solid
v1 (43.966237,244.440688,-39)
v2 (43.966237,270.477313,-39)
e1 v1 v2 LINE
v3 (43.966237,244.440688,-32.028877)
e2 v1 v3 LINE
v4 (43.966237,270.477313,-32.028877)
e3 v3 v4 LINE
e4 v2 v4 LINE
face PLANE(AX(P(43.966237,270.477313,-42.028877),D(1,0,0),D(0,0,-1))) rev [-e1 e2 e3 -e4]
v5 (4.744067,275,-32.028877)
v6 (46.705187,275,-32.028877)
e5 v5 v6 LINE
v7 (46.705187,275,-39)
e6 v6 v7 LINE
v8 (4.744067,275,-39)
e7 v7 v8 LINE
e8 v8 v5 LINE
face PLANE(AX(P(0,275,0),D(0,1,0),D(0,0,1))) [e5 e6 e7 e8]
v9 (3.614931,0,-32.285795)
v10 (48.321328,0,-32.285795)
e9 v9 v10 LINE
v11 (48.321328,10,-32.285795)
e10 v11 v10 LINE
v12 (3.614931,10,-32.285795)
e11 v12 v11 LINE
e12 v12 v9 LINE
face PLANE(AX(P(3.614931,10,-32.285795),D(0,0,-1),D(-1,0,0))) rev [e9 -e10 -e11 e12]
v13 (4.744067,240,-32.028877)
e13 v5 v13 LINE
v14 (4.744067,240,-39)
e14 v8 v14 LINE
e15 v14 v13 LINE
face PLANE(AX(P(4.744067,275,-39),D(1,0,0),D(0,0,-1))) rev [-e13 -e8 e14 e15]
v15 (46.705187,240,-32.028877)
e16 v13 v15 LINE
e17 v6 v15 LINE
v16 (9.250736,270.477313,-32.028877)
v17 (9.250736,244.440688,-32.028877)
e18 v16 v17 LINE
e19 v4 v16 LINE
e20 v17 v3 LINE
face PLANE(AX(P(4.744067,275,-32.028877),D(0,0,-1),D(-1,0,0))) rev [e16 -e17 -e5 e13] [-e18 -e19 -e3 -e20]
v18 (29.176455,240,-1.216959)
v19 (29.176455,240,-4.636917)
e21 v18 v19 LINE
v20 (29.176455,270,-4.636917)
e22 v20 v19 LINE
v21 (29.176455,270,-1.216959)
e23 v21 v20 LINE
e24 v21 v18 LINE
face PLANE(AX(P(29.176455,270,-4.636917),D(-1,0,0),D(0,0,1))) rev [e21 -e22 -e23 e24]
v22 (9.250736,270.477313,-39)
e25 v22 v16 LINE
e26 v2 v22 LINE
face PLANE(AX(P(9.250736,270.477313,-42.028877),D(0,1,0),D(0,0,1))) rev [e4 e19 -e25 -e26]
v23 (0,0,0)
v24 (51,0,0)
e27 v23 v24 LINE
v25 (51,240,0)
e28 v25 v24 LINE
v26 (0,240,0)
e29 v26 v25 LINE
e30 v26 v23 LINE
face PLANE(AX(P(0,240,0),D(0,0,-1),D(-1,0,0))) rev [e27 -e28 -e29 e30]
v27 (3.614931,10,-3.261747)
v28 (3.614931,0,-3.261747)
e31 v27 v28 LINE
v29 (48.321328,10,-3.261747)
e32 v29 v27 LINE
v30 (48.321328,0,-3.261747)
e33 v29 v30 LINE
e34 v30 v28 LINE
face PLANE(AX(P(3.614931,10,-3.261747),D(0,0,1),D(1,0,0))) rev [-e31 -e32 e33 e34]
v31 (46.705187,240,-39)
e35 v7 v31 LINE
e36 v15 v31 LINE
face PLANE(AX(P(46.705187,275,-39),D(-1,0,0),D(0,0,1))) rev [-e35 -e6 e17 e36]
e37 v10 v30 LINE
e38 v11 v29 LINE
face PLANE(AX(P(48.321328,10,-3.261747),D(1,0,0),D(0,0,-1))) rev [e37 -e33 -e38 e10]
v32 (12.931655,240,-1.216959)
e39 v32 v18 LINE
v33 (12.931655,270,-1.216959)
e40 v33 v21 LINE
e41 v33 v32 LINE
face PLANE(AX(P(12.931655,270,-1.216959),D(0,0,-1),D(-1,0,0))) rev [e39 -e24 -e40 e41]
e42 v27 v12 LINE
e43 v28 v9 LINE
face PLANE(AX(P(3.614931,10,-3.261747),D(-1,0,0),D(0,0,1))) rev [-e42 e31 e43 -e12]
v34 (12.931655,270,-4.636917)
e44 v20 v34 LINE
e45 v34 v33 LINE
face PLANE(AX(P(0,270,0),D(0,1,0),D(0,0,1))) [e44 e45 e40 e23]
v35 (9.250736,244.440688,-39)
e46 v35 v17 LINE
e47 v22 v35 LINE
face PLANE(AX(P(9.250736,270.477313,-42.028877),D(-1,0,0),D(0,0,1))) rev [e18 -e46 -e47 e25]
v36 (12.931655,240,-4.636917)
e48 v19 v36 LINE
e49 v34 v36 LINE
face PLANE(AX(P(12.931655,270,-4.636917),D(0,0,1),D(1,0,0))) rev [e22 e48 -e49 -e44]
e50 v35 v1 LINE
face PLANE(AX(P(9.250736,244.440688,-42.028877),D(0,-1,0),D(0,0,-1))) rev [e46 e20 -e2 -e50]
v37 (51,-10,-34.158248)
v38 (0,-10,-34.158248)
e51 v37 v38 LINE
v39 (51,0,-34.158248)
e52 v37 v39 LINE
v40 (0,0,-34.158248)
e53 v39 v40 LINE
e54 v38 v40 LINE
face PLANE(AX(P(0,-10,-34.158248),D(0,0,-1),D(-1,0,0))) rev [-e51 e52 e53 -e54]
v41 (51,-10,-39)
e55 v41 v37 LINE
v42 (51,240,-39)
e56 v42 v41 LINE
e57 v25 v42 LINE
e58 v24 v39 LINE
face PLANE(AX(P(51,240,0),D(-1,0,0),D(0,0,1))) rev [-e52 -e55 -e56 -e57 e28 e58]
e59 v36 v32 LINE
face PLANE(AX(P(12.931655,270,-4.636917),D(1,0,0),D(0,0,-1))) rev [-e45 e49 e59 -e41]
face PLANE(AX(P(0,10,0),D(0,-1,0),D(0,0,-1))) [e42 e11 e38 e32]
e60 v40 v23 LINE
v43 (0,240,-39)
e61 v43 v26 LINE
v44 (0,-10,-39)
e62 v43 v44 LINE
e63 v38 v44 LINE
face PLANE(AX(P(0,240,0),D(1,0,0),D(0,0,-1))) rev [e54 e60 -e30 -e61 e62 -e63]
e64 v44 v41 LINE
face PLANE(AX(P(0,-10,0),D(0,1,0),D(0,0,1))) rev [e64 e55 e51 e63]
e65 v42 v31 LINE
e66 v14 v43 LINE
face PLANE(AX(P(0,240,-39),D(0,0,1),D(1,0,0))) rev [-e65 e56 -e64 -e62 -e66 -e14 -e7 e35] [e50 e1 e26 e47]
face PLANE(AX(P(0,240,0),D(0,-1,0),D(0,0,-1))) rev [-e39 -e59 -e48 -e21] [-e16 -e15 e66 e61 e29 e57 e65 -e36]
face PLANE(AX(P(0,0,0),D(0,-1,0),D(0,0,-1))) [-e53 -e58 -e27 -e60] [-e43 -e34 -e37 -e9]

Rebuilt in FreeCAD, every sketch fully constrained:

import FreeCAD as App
import Part
import Sketcher
from FreeCAD import Vector
Q = App.Units.Quantity

doc = App.newDocument("Part")
params = doc.addObject("Spreadsheet::Sheet", "Params")
for row, (alias, value) in enumerate([
    ("sketch1_width", "51 mm"),
    ("sketch1_height", "39 mm"),
    ("pad1_length", "240 mm"),
    ("pad2_length", "35 mm"),
    ("pad3_length", "30 mm"),
    ("sketch4_width", "51 mm"),
    ("pad4_length", "10 mm"),
    ("pocket1_length", "10 mm"),
    ("pocket2_length", "10 mm"),
], start=1):
    params.set(f"A{row}", alias)
    params.set(f"B{row}", "=" + value)
    params.setAlias(f"B{row}", alias)

body = doc.addObject("PartDesign::Body", "Body")

sketch1 = body.newObject("Sketcher::SketchObject", "Sketch")
sketch1.AttachmentSupport = (doc.getObject("XZ_Plane"), [""])
sketch1.MapMode = "FlatFace"
sketch1.addGeometry([
    Part.LineSegment(Vector(0, -39, 0), Vector(0, 0, 0)),
    Part.LineSegment(Vector(0, 0, 0), Vector(51, 0, 0)),
    Part.LineSegment(Vector(51, 0, 0), Vector(51, -39, 0)),
    Part.LineSegment(Vector(51, -39, 0), Vector(0, -39, 0)),
], False)
sketch1.addConstraint([
    Sketcher.Constraint("Coincident", 0, 2, 1, 1),
    Sketcher.Constraint("Coincident", 1, 2, 2, 1),
    Sketcher.Constraint("Coincident", 2, 2, 3, 1),
    Sketcher.Constraint("Coincident", 3, 2, 0, 1),
    Sketcher.Constraint("Vertical", 0),
    Sketcher.Constraint("Horizontal", 1),
    Sketcher.Constraint("Vertical", 2),
    Sketcher.Constraint("Horizontal", 3),
    Sketcher.Constraint("Coincident", 0, 2, -1, 1),
    Sketcher.Constraint("DistanceX", 1, 1, 1, 2, Q("51 mm")),
    Sketcher.Constraint("DistanceY", 0, 1, 0, 2, Q("39 mm")),
])
sketch1.setExpression("Constraints[9]", "Params.sketch1_width")
sketch1.setExpression("Constraints[10]", "Params.sketch1_height")
pad1 = body.newObject("PartDesign::Pad", "Pad")
pad1.Profile = sketch1
pad1.setExpression("Length", "Params.pad1_length")
pad1.Reversed = True

sketch2 = body.newObject("Sketcher::SketchObject", "Sketch001")
sketch2.AttachmentSupport = (doc.getObject("XZ_Plane"), [""])
sketch2.MapMode = "FlatFace"
sketch2.AttachmentOffset = App.Placement(Vector(0, 0, -240), App.Rotation())
sketch2.addGeometry([
    Part.LineSegment(Vector(5, -39, 0), Vector(5, -32, 0)),
    Part.LineSegment(Vector(5, -32, 0), Vector(47, -32, 0)),
    Part.LineSegment(Vector(47, -32, 0), Vector(47, -39, 0)),
    Part.LineSegment(Vector(47, -39, 0), Vector(5, -39, 0)),
], False)
sketch2.addConstraint([
    Sketcher.Constraint("Coincident", 0, 2, 1, 1),
    Sketcher.Constraint("Coincident", 1, 2, 2, 1),
    Sketcher.Constraint("Coincident", 2, 2, 3, 1),
    Sketcher.Constraint("Coincident", 3, 2, 0, 1),
    Sketcher.Constraint("Vertical", 0),
    Sketcher.Constraint("Horizontal", 1),
    Sketcher.Constraint("Vertical", 2),
    Sketcher.Constraint("Horizontal", 3),
    Sketcher.Constraint("DistanceY", 2, 2, -1, 1, Q("39 mm")),
    Sketcher.Constraint("DistanceX", 1, 1, 1, 2, Q("41.96112 mm")),
    Sketcher.Constraint("DistanceY", 0, 1, 0, 2, Q("6.971123 mm")),
    Sketcher.Constraint("DistanceX", -1, 1, 0, 2, Q("4.744067 mm")),
])
pad2 = body.newObject("PartDesign::Pad", "Pad001")
pad2.Profile = sketch2
pad2.setExpression("Length", "Params.pad2_length")
pad2.Reversed = True

sketch3 = body.newObject("Sketcher::SketchObject", "Sketch002")
sketch3.AttachmentSupport = (doc.getObject("XZ_Plane"), [""])
sketch3.MapMode = "FlatFace"
sketch3.AttachmentOffset = App.Placement(Vector(0, 0, -240), App.Rotation())
sketch3.addGeometry([
    Part.LineSegment(Vector(12.9, -4.6, 0), Vector(12.9, -1.2, 0)),
    Part.LineSegment(Vector(12.9, -1.2, 0), Vector(29.2, -1.2, 0)),
    Part.LineSegment(Vector(29.2, -1.2, 0), Vector(29.2, -4.6, 0)),
    Part.LineSegment(Vector(29.2, -4.6, 0), Vector(12.9, -4.6, 0)),
], False)
sketch3.addConstraint([
    Sketcher.Constraint("Coincident", 0, 2, 1, 1),
    Sketcher.Constraint("Coincident", 1, 2, 2, 1),
    Sketcher.Constraint("Coincident", 2, 2, 3, 1),
    Sketcher.Constraint("Coincident", 3, 2, 0, 1),
    Sketcher.Constraint("Vertical", 0),
    Sketcher.Constraint("Horizontal", 1),
    Sketcher.Constraint("Vertical", 2),
    Sketcher.Constraint("Horizontal", 3),
    Sketcher.Constraint("DistanceX", 1, 1, 1, 2, Q("16.2448 mm")),
    Sketcher.Constraint("DistanceY", 0, 1, 0, 2, Q("3.419958 mm")),
    Sketcher.Constraint("DistanceY", 0, 2, -1, 1, Q("1.216959 mm")),
    Sketcher.Constraint("DistanceX", -1, 1, 0, 2, Q("12.931655 mm")),
])
pad3 = body.newObject("PartDesign::Pad", "Pad002")
pad3.Profile = sketch3
pad3.setExpression("Length", "Params.pad3_length")
pad3.Reversed = True

sketch4 = body.newObject("Sketcher::SketchObject", "Sketch003")
sketch4.AttachmentSupport = (doc.getObject("XZ_Plane"), [""])
sketch4.MapMode = "FlatFace"
sketch4.addGeometry([
    Part.LineSegment(Vector(0, -34.2, 0), Vector(0, -39, 0)),
    Part.LineSegment(Vector(0, -39, 0), Vector(51, -39, 0)),
    Part.LineSegment(Vector(51, -39, 0), Vector(51, -34.2, 0)),
    Part.LineSegment(Vector(51, -34.2, 0), Vector(0, -34.2, 0)),
], False)
sketch4.addConstraint([
    Sketcher.Constraint("Coincident", 0, 2, 1, 1),
    Sketcher.Constraint("Coincident", 1, 2, 2, 1),
    Sketcher.Constraint("Coincident", 2, 2, 3, 1),
    Sketcher.Constraint("Coincident", 3, 2, 0, 1),
    Sketcher.Constraint("Vertical", 0),
    Sketcher.Constraint("Horizontal", 1),
    Sketcher.Constraint("Vertical", 2),
    Sketcher.Constraint("Horizontal", 3),
    Sketcher.Constraint("PointOnObject", 0, 2, -2),
    Sketcher.Constraint("DistanceX", 1, 1, 1, 2, Q("51 mm")),
    Sketcher.Constraint("DistanceY", 0, 2, -1, 1, Q("39 mm")),
    Sketcher.Constraint("DistanceY", 0, 2, 0, 1, Q("4.841752 mm")),
])
sketch4.setExpression("Constraints[9]", "Params.sketch4_width")
pad4 = body.newObject("PartDesign::Pad", "Pad003")
pad4.Profile = sketch4
pad4.setExpression("Length", "Params.pad4_length")

sketch5 = body.newObject("Sketcher::SketchObject", "Sketch004")
sketch5.AttachmentSupport = (doc.getObject("XZ_Plane"), [""])
sketch5.MapMode = "FlatFace"
sketch5.addGeometry([
    Part.LineSegment(Vector(4, -3, 0), Vector(4, -32, 0)),
    Part.LineSegment(Vector(4, -32, 0), Vector(48, -32, 0)),
    Part.LineSegment(Vector(48, -32, 0), Vector(48, -3, 0)),
    Part.LineSegment(Vector(48, -3, 0), Vector(4, -3, 0)),
], False)
sketch5.addConstraint([
    Sketcher.Constraint("Coincident", 0, 2, 1, 1),
    Sketcher.Constraint("Coincident", 1, 2, 2, 1),
    Sketcher.Constraint("Coincident", 2, 2, 3, 1),
    Sketcher.Constraint("Coincident", 3, 2, 0, 1),
    Sketcher.Constraint("Vertical", 0),
    Sketcher.Constraint("Horizontal", 1),
    Sketcher.Constraint("Vertical", 2),
    Sketcher.Constraint("Horizontal", 3),
    Sketcher.Constraint("DistanceY", 0, 2, 0, 1, Q("29.024048 mm")),
    Sketcher.Constraint("DistanceX", 1, 1, 1, 2, Q("44.706397 mm")),
    Sketcher.Constraint("DistanceX", -1, 1, 0, 2, Q("3.614931 mm")),
    Sketcher.Constraint("DistanceY", 0, 2, -1, 1, Q("32.285795 mm")),
])
pocket1 = body.newObject("PartDesign::Pocket", "Pocket")
pocket1.Profile = sketch5
pocket1.setExpression("Length", "Params.pocket1_length")

sketch6 = body.newObject("Sketcher::SketchObject", "Sketch005")
sketch6.AttachmentSupport = (doc.getObject("XY_Plane"), [""])
sketch6.MapMode = "FlatFace"
sketch6.AttachmentOffset = App.Placement(Vector(0, 0, -32.028877), App.Rotation())
sketch6.addGeometry([
    Part.LineSegment(Vector(9, 270, 0), Vector(9, 244, 0)),
    Part.LineSegment(Vector(9, 244, 0), Vector(44, 244, 0)),
    Part.LineSegment(Vector(44, 244, 0), Vector(44, 270, 0)),
    Part.LineSegment(Vector(44, 270, 0), Vector(9, 270, 0)),
], False)
sketch6.addConstraint([
    Sketcher.Constraint("Coincident", 0, 2, 1, 1),
    Sketcher.Constraint("Coincident", 1, 2, 2, 1),
    Sketcher.Constraint("Coincident", 2, 2, 3, 1),
    Sketcher.Constraint("Coincident", 3, 2, 0, 1),
    Sketcher.Constraint("Vertical", 0),
    Sketcher.Constraint("Horizontal", 1),
    Sketcher.Constraint("Vertical", 2),
    Sketcher.Constraint("Horizontal", 3),
    Sketcher.Constraint("DistanceX", 1, 1, 1, 2, Q("34.7155 mm")),
    Sketcher.Constraint("DistanceY", 0, 2, 0, 1, Q("26.036625 mm")),
    Sketcher.Constraint("DistanceY", -1, 1, 0, 2, Q("244.440688 mm")),
    Sketcher.Constraint("DistanceX", -1, 1, 0, 2, Q("9.250736 mm")),
])
pocket2 = body.newObject("PartDesign::Pocket", "Pocket001")
pocket2.Profile = sketch6
pocket2.setExpression("Length", "Params.pocket2_length")

doc.recompute()
